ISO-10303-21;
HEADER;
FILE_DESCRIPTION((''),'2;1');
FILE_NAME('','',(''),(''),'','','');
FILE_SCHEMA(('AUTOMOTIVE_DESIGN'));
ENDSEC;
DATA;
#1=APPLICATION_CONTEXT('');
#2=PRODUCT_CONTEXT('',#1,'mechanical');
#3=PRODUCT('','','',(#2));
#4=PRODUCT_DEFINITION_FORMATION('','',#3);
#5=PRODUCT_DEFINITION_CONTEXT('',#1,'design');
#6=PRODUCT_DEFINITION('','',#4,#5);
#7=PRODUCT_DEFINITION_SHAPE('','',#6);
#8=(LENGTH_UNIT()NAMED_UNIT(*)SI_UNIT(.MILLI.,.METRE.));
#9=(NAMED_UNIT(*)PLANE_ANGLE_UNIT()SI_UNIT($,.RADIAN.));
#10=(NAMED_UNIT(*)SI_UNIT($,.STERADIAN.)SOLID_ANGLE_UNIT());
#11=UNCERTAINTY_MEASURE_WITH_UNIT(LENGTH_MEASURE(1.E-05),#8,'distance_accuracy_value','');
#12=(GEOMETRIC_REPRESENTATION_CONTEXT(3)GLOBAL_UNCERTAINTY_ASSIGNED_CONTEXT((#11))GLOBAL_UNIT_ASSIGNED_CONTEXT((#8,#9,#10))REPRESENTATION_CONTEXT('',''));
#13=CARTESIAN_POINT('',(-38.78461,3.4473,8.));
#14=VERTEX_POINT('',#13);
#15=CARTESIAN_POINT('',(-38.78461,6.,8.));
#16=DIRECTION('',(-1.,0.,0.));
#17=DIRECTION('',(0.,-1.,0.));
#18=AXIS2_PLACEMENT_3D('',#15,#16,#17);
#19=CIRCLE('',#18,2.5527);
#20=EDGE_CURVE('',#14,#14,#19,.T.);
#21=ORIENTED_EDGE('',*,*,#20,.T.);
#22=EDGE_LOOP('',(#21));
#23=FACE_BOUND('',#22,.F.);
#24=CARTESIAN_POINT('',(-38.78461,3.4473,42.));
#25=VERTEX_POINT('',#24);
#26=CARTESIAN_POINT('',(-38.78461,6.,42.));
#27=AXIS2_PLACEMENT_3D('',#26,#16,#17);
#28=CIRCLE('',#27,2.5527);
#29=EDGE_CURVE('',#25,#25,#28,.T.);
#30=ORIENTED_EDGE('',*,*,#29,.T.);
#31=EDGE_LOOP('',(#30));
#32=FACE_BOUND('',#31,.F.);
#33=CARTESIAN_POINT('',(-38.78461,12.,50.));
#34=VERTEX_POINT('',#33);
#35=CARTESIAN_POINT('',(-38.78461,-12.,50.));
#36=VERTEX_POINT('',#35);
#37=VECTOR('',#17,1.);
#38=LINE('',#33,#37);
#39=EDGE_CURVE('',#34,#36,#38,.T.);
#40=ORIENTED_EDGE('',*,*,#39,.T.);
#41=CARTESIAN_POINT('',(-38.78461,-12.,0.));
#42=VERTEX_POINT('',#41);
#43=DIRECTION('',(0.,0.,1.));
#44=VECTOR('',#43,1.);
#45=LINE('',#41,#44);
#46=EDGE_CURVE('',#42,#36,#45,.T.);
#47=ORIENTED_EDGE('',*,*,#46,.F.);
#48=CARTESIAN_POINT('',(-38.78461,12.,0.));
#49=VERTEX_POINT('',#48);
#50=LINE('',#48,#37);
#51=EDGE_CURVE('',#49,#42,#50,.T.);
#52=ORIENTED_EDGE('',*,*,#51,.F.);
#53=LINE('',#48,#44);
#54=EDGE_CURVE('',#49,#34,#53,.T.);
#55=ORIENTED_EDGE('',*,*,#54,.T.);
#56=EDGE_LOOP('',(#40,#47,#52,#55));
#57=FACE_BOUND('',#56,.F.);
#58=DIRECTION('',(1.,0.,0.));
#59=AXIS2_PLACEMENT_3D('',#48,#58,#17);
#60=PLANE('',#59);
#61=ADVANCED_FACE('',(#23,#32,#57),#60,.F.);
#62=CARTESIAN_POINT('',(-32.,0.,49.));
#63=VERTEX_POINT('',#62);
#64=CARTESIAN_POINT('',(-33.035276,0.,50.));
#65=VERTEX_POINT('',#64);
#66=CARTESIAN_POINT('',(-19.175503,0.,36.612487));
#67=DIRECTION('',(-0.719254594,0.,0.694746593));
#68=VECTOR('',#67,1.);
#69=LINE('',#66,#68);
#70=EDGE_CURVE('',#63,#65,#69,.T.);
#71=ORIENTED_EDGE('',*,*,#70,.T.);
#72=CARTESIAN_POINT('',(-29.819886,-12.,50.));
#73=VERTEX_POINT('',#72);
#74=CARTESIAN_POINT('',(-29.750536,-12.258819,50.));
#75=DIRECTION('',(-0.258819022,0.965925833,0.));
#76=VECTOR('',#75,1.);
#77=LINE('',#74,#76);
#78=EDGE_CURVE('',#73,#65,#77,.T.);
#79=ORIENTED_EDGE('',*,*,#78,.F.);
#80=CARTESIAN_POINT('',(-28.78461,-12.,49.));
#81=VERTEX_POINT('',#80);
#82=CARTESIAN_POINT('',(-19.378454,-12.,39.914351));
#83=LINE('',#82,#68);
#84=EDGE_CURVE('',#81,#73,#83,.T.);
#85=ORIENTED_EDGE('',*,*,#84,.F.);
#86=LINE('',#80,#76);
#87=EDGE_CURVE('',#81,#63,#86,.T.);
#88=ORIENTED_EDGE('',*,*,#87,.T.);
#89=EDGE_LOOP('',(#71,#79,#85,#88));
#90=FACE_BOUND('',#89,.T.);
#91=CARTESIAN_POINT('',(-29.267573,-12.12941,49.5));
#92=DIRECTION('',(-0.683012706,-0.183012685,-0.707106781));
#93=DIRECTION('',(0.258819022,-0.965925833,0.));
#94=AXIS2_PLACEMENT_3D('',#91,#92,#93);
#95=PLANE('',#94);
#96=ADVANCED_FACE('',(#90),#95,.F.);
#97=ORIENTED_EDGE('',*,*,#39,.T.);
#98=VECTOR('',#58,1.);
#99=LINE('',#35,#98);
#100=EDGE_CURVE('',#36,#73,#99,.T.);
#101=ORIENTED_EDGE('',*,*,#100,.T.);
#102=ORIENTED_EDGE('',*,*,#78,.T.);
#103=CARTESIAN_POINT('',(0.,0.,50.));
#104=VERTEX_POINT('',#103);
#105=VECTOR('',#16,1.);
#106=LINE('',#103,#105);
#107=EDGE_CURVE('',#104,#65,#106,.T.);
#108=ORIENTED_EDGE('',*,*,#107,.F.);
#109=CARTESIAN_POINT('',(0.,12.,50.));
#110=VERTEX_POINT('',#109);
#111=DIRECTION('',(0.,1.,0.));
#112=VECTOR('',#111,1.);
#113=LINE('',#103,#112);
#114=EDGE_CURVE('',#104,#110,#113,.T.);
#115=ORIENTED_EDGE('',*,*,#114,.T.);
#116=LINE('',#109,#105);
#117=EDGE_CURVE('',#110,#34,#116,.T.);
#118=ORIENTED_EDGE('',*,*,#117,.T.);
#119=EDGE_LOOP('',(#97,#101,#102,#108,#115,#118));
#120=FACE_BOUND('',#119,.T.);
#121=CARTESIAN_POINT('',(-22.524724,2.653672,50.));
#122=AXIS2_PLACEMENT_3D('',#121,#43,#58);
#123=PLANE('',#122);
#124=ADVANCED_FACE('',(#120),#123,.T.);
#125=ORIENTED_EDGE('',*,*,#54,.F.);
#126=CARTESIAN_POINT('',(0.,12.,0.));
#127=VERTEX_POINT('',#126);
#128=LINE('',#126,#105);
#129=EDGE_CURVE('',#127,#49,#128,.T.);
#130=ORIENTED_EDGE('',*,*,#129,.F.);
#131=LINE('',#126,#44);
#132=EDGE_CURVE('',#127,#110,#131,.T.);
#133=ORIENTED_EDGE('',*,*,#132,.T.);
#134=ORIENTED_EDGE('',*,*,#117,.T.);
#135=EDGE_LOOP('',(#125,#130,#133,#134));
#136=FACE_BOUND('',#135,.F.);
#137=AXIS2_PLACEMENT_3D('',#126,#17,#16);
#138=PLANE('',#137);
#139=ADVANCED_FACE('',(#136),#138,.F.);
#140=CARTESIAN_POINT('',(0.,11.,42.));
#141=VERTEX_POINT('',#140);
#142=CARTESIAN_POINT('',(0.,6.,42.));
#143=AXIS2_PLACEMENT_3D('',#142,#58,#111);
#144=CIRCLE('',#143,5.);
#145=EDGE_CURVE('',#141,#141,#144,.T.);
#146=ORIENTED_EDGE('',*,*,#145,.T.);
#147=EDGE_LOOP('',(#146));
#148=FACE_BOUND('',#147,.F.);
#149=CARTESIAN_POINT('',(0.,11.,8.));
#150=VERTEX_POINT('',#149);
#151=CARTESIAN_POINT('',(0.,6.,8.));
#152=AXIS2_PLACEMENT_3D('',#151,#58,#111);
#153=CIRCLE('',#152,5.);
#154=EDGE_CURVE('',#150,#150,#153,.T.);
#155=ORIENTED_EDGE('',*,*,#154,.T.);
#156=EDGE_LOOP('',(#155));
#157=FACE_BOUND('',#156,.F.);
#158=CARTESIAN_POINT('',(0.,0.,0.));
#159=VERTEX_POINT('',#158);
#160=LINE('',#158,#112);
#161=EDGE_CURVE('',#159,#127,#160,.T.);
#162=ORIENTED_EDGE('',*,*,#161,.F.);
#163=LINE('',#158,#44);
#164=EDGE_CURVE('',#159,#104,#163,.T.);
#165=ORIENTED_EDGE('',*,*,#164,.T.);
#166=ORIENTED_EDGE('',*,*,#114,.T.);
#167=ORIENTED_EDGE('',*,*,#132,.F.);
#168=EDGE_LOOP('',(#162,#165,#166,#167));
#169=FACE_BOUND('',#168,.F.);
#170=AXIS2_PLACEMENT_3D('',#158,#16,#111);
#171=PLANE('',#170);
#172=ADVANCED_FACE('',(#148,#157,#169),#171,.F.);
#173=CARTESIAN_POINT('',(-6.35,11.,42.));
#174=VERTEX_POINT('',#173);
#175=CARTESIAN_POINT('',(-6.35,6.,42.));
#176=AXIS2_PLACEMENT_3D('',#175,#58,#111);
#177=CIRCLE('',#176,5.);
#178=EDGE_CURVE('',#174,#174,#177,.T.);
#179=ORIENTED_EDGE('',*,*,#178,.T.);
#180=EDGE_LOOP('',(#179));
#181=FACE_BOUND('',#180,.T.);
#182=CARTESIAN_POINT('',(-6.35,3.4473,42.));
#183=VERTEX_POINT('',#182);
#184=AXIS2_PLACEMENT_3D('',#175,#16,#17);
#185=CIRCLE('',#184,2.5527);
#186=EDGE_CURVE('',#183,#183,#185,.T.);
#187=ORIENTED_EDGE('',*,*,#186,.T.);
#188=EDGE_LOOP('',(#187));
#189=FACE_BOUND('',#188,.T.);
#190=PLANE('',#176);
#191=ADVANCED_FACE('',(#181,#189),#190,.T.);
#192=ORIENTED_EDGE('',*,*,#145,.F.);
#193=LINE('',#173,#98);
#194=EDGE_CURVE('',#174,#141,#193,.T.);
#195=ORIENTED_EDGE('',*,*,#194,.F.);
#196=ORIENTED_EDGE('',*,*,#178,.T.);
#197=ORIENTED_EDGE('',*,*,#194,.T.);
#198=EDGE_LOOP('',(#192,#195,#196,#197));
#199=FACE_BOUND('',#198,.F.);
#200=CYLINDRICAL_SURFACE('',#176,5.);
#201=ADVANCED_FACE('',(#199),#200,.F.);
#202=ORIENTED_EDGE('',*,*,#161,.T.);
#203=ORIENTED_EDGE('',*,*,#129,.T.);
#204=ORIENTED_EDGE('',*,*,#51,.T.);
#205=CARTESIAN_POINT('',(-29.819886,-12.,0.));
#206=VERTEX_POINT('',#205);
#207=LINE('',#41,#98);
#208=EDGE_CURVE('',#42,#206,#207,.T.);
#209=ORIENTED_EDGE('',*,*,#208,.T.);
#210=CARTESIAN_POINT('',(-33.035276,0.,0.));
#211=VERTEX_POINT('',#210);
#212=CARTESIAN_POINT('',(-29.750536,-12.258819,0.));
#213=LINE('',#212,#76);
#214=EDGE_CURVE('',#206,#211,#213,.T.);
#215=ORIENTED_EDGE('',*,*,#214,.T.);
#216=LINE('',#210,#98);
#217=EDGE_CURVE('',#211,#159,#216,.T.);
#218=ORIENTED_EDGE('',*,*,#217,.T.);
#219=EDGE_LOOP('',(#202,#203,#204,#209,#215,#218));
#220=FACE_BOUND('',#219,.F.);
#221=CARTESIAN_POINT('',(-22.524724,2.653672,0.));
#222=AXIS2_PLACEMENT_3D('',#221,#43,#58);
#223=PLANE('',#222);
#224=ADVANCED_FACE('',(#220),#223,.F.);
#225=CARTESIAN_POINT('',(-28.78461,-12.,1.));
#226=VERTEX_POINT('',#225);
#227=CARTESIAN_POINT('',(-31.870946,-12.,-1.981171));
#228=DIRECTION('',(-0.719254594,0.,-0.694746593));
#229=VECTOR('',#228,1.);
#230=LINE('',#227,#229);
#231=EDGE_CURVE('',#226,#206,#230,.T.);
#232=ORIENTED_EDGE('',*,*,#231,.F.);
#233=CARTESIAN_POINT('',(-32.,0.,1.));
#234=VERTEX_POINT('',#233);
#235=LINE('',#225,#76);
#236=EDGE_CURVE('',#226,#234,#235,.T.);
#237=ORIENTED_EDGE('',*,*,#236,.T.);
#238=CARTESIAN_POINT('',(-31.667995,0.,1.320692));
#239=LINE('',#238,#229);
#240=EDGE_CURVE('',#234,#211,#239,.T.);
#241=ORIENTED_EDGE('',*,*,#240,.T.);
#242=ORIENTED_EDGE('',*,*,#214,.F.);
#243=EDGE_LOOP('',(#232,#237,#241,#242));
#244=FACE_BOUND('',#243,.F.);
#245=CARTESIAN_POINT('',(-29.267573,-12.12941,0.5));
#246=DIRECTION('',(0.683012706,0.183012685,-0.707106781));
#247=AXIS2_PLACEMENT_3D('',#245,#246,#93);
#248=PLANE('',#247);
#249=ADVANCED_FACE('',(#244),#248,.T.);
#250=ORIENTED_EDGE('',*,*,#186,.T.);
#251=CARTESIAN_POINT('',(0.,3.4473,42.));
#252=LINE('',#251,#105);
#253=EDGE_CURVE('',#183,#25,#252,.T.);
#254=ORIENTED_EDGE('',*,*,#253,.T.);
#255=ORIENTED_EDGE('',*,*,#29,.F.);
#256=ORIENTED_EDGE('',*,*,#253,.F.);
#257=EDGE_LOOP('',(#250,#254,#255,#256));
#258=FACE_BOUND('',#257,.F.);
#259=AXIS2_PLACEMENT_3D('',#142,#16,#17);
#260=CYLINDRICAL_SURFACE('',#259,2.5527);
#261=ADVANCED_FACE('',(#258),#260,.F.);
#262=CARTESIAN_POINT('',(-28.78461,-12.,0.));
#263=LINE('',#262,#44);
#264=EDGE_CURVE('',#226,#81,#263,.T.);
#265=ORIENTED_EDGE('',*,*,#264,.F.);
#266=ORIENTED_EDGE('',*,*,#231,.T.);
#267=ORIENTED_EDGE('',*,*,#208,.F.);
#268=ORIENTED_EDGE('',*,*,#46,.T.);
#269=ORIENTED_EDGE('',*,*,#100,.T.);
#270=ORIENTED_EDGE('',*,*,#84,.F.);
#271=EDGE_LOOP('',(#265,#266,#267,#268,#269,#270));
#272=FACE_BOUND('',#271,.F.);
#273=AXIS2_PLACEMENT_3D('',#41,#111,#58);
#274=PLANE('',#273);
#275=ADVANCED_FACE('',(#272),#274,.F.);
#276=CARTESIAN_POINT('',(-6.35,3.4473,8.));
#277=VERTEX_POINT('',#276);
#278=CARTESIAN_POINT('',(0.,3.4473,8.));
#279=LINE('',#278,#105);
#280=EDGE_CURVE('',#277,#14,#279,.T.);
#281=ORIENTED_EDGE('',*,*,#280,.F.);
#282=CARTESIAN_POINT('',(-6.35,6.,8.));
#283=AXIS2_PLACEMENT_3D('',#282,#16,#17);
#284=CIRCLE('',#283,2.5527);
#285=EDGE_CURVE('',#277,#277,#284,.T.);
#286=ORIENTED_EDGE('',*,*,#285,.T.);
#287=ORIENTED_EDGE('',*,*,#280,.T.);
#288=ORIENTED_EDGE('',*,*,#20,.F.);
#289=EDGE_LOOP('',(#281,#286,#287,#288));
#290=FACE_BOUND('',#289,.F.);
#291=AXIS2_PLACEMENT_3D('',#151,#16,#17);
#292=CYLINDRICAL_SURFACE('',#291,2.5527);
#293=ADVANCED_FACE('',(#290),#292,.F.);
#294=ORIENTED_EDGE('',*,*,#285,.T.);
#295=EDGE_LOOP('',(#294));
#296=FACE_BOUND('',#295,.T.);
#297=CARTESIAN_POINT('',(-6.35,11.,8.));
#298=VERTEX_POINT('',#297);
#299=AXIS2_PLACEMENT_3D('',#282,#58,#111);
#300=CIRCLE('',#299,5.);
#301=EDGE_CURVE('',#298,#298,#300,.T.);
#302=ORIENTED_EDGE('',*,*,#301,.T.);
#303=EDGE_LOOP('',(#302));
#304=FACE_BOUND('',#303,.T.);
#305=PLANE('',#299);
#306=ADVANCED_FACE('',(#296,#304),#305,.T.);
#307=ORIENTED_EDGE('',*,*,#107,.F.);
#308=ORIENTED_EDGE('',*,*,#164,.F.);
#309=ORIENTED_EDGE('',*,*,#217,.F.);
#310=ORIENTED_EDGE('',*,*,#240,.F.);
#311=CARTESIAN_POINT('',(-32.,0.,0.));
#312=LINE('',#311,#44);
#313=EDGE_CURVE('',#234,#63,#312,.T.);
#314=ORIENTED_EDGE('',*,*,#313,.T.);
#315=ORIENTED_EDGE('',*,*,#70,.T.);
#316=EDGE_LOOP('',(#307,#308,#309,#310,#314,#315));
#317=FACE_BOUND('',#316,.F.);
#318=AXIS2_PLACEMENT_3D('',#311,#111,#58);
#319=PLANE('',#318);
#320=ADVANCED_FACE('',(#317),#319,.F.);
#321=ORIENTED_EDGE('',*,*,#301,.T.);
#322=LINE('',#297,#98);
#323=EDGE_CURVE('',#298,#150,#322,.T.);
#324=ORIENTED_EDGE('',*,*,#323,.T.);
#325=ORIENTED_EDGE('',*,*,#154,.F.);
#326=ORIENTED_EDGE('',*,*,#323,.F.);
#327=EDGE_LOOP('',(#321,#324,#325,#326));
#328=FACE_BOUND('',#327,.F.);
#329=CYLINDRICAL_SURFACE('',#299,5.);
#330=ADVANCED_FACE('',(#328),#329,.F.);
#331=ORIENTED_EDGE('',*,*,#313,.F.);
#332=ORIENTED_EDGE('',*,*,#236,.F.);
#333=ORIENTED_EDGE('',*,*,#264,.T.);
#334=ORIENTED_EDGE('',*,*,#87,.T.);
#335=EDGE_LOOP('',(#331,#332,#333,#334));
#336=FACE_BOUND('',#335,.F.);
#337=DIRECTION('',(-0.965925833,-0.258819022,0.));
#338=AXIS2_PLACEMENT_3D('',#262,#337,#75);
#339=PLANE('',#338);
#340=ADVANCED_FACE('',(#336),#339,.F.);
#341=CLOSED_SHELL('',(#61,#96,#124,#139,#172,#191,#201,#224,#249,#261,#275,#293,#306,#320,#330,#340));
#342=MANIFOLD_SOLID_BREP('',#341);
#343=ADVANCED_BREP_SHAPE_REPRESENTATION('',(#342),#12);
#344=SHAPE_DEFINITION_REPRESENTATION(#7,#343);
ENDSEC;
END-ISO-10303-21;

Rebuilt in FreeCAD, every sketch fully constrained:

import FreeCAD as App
import Part
import Sketcher
from FreeCAD import Vector
Q = App.Units.Quantity


def edges_at(feature, points):
    """Names of the edges that pass closest to the given points."""
    edges = feature.Shape.Edges
    near = lambda p: min(range(len(edges)), key=lambda i: edges[i].distToShape(Part.Vertex(*p))[0])
    return sorted({f"Edge{near(p) + 1}" for p in points})


def add_polygon(sketch, points):
    """Adds a closed chain of lines whose ends are joined by coincident constraints."""
    first, n = sketch.GeometryCount, len(points)
    for a, b in zip(points, points[1:] + points[:1]):
        sketch.addGeometry(Part.LineSegment(App.Vector(*a, 0), App.Vector(*b, 0)), False)
    for i in range(n):
        sketch.addConstraint(Sketcher.Constraint("Coincident", first + i, 2, first + (i + 1) % n, 1))

doc = App.newDocument("Part")
params = doc.addObject("Spreadsheet::Sheet", "Params")
for row, (alias, value) in enumerate([
    ("sketch1_width", "32 mm"),
    ("sketch1_width2", "10 mm"),
    ("sketch1_height", "12 mm"),
    ("sketch1_height2", "24 mm"),
    ("pad1_length", "50 mm"),
    ("hole_diameter", "5.1054 mm"),
    ("hole_cbore_diameter", "10 mm"),
    ("hole_cbore_depth", "6.35 mm"),
    ("chamfer_size", "1 mm"),
], start=1):
    params.set(f"A{row}", alias)
    params.set(f"B{row}", "=" + value)
    params.setAlias(f"B{row}", alias)

body = doc.addObject("PartDesign::Body", "Body")

# Sketch on XY plane
sketch1 = body.newObject("Sketcher::SketchObject", "Sketch")
sketch1.AttachmentSupport = (doc.getObject("XY_Plane"), [""])
sketch1.MapMode = "FlatFace"
add_polygon(sketch1, [(-32, 0), (0, 0), (0, 12), (-38.78461, 12), (-38.78461, -12), (-28.78461, -12)])  # lines 0-5
sketch1.addConstraint(Sketcher.Constraint("Horizontal", 0))
sketch1.addConstraint(Sketcher.Constraint("Vertical", 1))
sketch1.addConstraint(Sketcher.Constraint("Horizontal", 2))
sketch1.addConstraint(Sketcher.Constraint("Vertical", 3))
sketch1.addConstraint(Sketcher.Constraint("Horizontal", 4))
sketch1.addConstraint(Sketcher.Constraint("Coincident", 0, 2, -1, 1))
sketch1.addConstraint(Sketcher.Constraint("DistanceX", 0, 1, 0, 2, 32.0))
sketch1.addConstraint(Sketcher.Constraint("DistanceX", 4, 1, 4, 2, 10.0))
sketch1.addConstraint(Sketcher.Constraint("DistanceY", 1, 1, 1, 2, 12.0))
sketch1.addConstraint(Sketcher.Constraint("DistanceY", 3, 2, 3, 1, 24.0))
sketch1.addConstraint(Sketcher.Constraint("Angle", 5, Q("104.999999 deg")))
sketch1.setExpression("Constraints[12]", "Params.sketch1_width")
sketch1.setExpression("Constraints[13]", "Params.sketch1_width2")
sketch1.setExpression("Constraints[14]", "Params.sketch1_height")
sketch1.setExpression("Constraints[15]", "Params.sketch1_height2")
pad1 = body.newObject("PartDesign::Pad", "Pad")
pad1.Profile = sketch1
pad1.setExpression("Length", "Params.pad1_length")

# Sketch on YZ plane
sketch2 = body.newObject("Sketcher::SketchObject", "Sketch001")
sketch2.AttachmentSupport = (doc.getObject("YZ_Plane"), [""])
sketch2.MapMode = "FlatFace"
sketch2.addGeometry(Part.Circle(Vector(6, 42, 0), Vector(0, 0, 1), 2.5527), False)
sketch2.addGeometry(Part.Circle(Vector(6, 8, 0), Vector(0, 0, 1), 2.5527), False)
sketch2.addConstraint(Sketcher.Constraint("Equal", 0, 1))
sketch2.addConstraint(Sketcher.Constraint("Vertical", 0, 3, 1, 3))
sketch2.addConstraint(Sketcher.Constraint("DistanceX", -1, 1, 0, 3, 6.0))
sketch2.addConstraint(Sketcher.Constraint("DistanceY", -1, 1, 0, 3, 42.0))
sketch2.addConstraint(Sketcher.Constraint("DistanceY", -1, 1, 1, 3, 8.0))
sketch2.addConstraint(Sketcher.Constraint("Diameter", 0, 5.1054))
doc.recompute()
hole = body.newObject("PartDesign::Hole", "Hole")
hole.Profile = sketch2
hole.ThreadType = "None"
hole.setExpression("Diameter", "Params.hole_diameter")
hole.DepthType = "ThroughAll"
hole.HoleCutType = "Counterbore"
hole.setExpression("HoleCutDiameter", "Params.hole_cbore_diameter")
hole.setExpression("HoleCutDepth", "Params.hole_cbore_depth")
doc.recompute()

chamfer = body.newObject("PartDesign::Chamfer", "Chamfer")
chamfer.Base = (hole, edges_at(hole, [(-30.392, -6, 50), (-30.392, -6, 0)]))
chamfer.setExpression("Size", "Params.chamfer_size")

doc.recompute()
